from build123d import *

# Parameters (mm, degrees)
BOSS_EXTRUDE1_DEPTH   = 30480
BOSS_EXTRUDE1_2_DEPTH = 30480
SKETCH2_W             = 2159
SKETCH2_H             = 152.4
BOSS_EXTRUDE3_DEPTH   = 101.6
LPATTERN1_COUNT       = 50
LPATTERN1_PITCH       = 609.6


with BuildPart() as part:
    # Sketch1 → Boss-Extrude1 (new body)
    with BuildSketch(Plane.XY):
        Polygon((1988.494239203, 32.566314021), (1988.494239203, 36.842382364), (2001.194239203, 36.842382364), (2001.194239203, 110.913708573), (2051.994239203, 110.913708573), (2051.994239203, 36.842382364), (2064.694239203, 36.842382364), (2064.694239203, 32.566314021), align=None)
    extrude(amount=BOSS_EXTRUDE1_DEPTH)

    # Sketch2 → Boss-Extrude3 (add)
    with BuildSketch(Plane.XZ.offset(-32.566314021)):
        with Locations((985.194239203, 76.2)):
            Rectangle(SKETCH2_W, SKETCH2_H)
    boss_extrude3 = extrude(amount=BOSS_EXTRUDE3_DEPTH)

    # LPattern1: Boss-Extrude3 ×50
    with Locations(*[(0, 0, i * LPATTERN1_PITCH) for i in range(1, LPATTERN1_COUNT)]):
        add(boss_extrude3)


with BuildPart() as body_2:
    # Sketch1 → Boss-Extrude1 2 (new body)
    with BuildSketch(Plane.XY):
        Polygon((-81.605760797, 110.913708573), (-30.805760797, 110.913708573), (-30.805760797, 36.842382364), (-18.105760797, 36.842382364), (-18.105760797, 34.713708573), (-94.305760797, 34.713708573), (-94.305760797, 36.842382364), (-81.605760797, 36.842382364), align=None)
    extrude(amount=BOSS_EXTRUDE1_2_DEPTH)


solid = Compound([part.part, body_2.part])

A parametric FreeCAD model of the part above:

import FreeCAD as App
import Part
import Sketcher
Q = App.Units.Quantity


def add_polygon(sketch, points):
    """Adds a closed chain of lines whose ends are joined by coincident constraints."""
    first, n = sketch.GeometryCount, len(points)
    for a, b in zip(points, points[1:] + points[:1]):
        sketch.addGeometry(Part.LineSegment(App.Vector(*a, 0), App.Vector(*b, 0)), False)
    for i in range(n):
        sketch.addConstraint(Sketcher.Constraint("Coincident", first + i, 2, first + (i + 1) % n, 1))

doc = App.newDocument("Part")
body = doc.addObject("PartDesign::Body", "Body")

# Sketch on XY plane
sketch1 = body.newObject("Sketcher::SketchObject", "Sketch")
sketch1.AttachmentSupport = (doc.getObject("XY_Plane"), [""])
sketch1.MapMode = "FlatFace"
add_polygon(sketch1, [(1988.5, 36.8), (1988.5, 32.6), (2064.7, 32.6), (2064.7, 36.8), (2052, 36.8), (2052, 110.9), (2001.2, 110.9), (2001.2, 36.8)])  # lines 0-7
sketch1.addConstraint([
    Sketcher.Constraint("Vertical", 0),
    Sketcher.Constraint("Horizontal", 1),
    Sketcher.Constraint("Vertical", 2),
    Sketcher.Constraint("Horizontal", 3),
    Sketcher.Constraint("Vertical", 4),
    Sketcher.Constraint("Horizontal", 5),
    Sketcher.Constraint("Vertical", 6),
    Sketcher.Constraint("Horizontal", 7),
    Sketcher.Constraint("Horizontal", 3, 2, 6, 2),
    Sketcher.Constraint("Equal", 3, 7),
    Sketcher.Constraint("DistanceX", 1, 1, 1, 2, Q("3 in")),
    Sketcher.Constraint("DistanceX", 5, 2, 5, 1, Q("2 in")),
    Sketcher.Constraint("DistanceY", 0, 2, 0, 1, Q("4.276068 mm")),
    Sketcher.Constraint("DistanceY", 4, 1, 4, 2, Q("74.071326 mm")),
    Sketcher.Constraint("DistanceX", -1, 1, 0, 2, Q("1988.494239 mm")),
    Sketcher.Constraint("DistanceY", -1, 1, 4, 2, Q("110.913709 mm")),
])
pad1 = body.newObject("PartDesign::Pad", "Pad")
pad1.Profile = sketch1
pad1.Length = Q("1200 in")

# Sketch on XZ plane
sketch2 = body.newObject("Sketcher::SketchObject", "Sketch001")
sketch2.AttachmentSupport = (doc.getObject("XZ_Plane"), [""])
sketch2.MapMode = "FlatFace"
sketch2.AttachmentOffset = App.Placement(App.Vector(0, 0, -32.566314), App.Rotation())
add_polygon(sketch2, [(-94, 152), (-94, 0), (2065, 0), (2065, 152)])  # lines 0-3
sketch2.addConstraint([
    Sketcher.Constraint("Vertical", 0),
    Sketcher.Constraint("Horizontal", 1),
    Sketcher.Constraint("Vertical", 2),
    Sketcher.Constraint("Horizontal", 3),
    Sketcher.Constraint("PointOnObject", 0, 2, -1),
    Sketcher.Constraint("DistanceX", 1, 1, 1, 2, Q("85 in")),
    Sketcher.Constraint("DistanceY", 0, 2, 0, 1, Q("6 in")),
    Sketcher.Constraint("DistanceX", 0, 2, -1, 1, Q("94.305761 mm")),
])
pad2 = body.newObject("PartDesign::Pad", "Pad001")
pad2.Profile = sketch2
pad2.Length = Q("4 in")
doc.recompute()

linearpattern = body.newObject("PartDesign::LinearPattern", "LinearPattern")
linearpattern.Originals = [pad2]
linearpattern.Direction = (doc.getObject("Z_Axis"), [""])
linearpattern.Mode = "offset"
linearpattern.Offset = Q("24 in")
linearpattern.Occurrences = 50
body.Tip = linearpattern
body2 = doc.addObject("PartDesign::Body", "Body001")

# Sketch on XY plane
sketch3 = body2.newObject("Sketcher::SketchObject", "Sketch002")
sketch3.AttachmentSupport = (doc.getObject("XY_Plane001"), [""])
sketch3.MapMode = "FlatFace"
add_polygon(sketch3, [(-30.8, 110.9), (-81.6, 110.9), (-81.6, 36.8), (-94.3, 36.8), (-94.3, 34.7), (-18.1, 34.7), (-18.1, 36.8), (-30.8, 36.8)])  # lines 0-7
sketch3.addConstraint([
    Sketcher.Constraint("Horizontal", 0),
    Sketcher.Constraint("Vertical", 1),
    Sketcher.Constraint("Horizontal", 2),
    Sketcher.Constraint("Vertical", 3),
    Sketcher.Constraint("Horizontal", 4),
    Sketcher.Constraint("Vertical", 5),
    Sketcher.Constraint("Horizontal", 6),
    Sketcher.Constraint("Vertical", 7),
    Sketcher.Constraint("Horizontal", 2, 2, 5, 2),
    Sketcher.Constraint("Equal", 2, 6),
    Sketcher.Constraint("DistanceX", 0, 2, 0, 1, Q("2 in")),
    Sketcher.Constraint("DistanceX", 4, 1, 4, 2, Q("3 in")),
    Sketcher.Constraint("DistanceY", 3, 2, 0, 2, Q("3 in")),
    Sketcher.Constraint("DistanceY", 1, 2, 1, 1, Q("74.071326 mm")),
    Sketcher.Constraint("DistanceX", 0, 2, -1, 1, Q("81.605761 mm")),
    Sketcher.Constraint("DistanceY", -1, 1, 0, 2, Q("110.913709 mm")),
])
pad3 = body2.newObject("PartDesign::Pad", "Pad002")
pad3.Profile = sketch3
pad3.Length = Q("1200 in")

doc.recompute()
